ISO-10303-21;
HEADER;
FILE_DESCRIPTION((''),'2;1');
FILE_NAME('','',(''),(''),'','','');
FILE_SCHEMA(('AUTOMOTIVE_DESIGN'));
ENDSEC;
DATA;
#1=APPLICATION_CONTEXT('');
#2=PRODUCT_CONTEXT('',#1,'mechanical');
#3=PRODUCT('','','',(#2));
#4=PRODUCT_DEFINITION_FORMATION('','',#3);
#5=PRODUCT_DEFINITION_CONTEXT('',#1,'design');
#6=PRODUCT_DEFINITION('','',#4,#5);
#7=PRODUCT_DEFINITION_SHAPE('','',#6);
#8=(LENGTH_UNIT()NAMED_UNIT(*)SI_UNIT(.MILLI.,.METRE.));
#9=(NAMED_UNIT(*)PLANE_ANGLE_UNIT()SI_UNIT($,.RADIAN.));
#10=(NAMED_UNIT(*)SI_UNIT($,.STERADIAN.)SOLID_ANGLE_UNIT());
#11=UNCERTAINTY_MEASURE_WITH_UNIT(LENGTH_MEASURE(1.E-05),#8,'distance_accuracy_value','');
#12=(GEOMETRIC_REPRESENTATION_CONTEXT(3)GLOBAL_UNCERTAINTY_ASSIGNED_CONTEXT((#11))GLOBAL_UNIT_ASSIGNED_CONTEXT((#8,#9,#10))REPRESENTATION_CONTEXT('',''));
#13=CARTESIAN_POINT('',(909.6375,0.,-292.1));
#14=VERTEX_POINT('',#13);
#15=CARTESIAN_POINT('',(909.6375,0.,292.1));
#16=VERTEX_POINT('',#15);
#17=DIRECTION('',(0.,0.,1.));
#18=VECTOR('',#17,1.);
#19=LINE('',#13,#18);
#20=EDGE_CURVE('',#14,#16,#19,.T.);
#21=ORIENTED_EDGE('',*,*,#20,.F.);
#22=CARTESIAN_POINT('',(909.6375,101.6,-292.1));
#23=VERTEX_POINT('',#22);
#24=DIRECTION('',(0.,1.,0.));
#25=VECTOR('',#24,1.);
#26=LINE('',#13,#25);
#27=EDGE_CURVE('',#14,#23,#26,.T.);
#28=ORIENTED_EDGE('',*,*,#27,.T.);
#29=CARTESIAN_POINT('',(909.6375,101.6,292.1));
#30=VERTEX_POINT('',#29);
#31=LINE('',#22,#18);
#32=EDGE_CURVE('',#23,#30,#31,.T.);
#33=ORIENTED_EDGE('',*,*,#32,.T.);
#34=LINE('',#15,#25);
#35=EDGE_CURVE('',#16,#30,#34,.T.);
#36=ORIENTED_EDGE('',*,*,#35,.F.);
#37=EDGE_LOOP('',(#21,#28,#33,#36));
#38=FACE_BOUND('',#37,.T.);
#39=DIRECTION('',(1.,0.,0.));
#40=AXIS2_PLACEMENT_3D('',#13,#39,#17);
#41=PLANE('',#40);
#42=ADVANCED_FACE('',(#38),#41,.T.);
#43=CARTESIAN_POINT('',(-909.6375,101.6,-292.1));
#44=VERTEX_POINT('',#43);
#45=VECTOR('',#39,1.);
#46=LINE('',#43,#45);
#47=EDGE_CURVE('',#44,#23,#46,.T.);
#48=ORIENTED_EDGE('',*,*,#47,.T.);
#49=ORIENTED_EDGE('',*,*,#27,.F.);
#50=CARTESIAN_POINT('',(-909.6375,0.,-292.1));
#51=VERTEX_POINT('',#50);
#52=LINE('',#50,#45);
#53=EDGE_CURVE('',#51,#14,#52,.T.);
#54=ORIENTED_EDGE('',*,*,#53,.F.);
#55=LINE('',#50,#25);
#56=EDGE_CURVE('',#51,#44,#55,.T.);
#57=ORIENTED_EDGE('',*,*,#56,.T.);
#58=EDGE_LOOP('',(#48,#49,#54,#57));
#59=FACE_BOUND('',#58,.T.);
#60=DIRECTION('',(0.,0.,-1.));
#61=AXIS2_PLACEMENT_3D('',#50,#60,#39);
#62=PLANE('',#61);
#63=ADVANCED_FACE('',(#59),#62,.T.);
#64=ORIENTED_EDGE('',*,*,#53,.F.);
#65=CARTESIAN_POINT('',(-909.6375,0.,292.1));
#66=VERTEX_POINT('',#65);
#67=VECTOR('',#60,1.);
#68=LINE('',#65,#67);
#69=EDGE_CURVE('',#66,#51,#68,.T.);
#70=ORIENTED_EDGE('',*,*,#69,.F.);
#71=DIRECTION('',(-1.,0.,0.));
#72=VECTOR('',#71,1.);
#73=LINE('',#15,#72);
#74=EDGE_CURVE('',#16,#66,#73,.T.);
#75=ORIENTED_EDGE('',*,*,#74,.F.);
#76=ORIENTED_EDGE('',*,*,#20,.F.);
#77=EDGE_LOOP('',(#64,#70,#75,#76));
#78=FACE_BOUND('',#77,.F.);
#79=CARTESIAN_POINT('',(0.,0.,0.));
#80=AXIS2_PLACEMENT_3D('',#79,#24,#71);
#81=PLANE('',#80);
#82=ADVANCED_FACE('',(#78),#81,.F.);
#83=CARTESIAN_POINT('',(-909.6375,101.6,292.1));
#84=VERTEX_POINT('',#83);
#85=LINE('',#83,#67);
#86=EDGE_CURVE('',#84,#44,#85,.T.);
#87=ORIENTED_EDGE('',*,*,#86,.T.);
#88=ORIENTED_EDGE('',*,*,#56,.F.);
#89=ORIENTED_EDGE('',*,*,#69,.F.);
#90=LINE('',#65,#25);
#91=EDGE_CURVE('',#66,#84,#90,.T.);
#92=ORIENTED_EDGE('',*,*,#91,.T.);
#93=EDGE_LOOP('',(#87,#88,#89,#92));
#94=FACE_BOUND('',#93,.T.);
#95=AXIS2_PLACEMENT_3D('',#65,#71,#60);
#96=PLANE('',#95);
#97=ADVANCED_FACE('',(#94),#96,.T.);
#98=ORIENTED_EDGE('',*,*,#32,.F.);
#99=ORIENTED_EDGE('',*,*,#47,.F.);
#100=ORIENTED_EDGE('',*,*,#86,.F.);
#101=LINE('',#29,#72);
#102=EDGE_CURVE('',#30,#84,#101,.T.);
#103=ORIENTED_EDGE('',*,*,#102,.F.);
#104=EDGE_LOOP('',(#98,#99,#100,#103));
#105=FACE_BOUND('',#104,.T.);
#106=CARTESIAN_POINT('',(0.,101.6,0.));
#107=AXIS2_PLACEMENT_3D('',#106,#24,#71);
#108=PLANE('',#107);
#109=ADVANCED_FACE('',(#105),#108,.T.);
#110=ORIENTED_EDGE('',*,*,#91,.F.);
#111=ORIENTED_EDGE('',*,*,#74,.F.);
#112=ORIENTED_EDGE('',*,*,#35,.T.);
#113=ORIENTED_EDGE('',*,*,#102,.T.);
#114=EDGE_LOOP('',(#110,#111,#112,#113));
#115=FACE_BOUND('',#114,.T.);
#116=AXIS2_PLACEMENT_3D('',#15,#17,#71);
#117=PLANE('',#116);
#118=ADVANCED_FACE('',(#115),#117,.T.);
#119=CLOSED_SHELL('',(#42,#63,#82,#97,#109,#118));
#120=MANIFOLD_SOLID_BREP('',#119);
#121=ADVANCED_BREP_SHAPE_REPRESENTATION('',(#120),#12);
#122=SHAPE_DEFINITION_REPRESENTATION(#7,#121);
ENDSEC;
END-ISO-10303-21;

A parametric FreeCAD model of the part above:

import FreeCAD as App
import Part
import Sketcher
Q = App.Units.Quantity

doc = App.newDocument("Part")
body = doc.addObject("PartDesign::Body", "Body")

sketch1 = body.newObject("Sketcher::SketchObject", "Sketch")
sketch1.AttachmentSupport = (doc.getObject("XZ_Plane"), [""])
sketch1.MapMode = "FlatFace"
sketch1.addGeometry([
    Part.LineSegment(App.Vector(910, -292, 0), App.Vector(-910, -292, 0)),
    Part.LineSegment(App.Vector(-910, -292, 0), App.Vector(-910, 292, 0)),
    Part.LineSegment(App.Vector(-910, 292, 0), App.Vector(910, 292, 0)),
    Part.LineSegment(App.Vector(910, 292, 0), App.Vector(910, -292, 0)),
], False)
sketch1.addConstraint([
    Sketcher.Constraint("Coincident", 0, 2, 1, 1),
    Sketcher.Constraint("Coincident", 1, 2, 2, 1),
    Sketcher.Constraint("Coincident", 2, 2, 3, 1),
    Sketcher.Constraint("Coincident", 3, 2, 0, 1),
    Sketcher.Constraint("Horizontal", 0),
    Sketcher.Constraint("Vertical", 1),
    Sketcher.Constraint("Horizontal", 2),
    Sketcher.Constraint("Vertical", 3),
    Sketcher.Constraint("Symmetric", 0, 2, 2, 2, -1, 1),
    Sketcher.Constraint("DistanceY", 1, 1, 1, 2, Q("23 in")),
    Sketcher.Constraint("DistanceX", 0, 2, 0, 1, Q("71.625 in")),
])
pad1 = body.newObject("PartDesign::Pad", "Pad")
pad1.Profile = sketch1
pad1.Length = Q("4 in")
pad1.Reversed = True

doc.recompute()
